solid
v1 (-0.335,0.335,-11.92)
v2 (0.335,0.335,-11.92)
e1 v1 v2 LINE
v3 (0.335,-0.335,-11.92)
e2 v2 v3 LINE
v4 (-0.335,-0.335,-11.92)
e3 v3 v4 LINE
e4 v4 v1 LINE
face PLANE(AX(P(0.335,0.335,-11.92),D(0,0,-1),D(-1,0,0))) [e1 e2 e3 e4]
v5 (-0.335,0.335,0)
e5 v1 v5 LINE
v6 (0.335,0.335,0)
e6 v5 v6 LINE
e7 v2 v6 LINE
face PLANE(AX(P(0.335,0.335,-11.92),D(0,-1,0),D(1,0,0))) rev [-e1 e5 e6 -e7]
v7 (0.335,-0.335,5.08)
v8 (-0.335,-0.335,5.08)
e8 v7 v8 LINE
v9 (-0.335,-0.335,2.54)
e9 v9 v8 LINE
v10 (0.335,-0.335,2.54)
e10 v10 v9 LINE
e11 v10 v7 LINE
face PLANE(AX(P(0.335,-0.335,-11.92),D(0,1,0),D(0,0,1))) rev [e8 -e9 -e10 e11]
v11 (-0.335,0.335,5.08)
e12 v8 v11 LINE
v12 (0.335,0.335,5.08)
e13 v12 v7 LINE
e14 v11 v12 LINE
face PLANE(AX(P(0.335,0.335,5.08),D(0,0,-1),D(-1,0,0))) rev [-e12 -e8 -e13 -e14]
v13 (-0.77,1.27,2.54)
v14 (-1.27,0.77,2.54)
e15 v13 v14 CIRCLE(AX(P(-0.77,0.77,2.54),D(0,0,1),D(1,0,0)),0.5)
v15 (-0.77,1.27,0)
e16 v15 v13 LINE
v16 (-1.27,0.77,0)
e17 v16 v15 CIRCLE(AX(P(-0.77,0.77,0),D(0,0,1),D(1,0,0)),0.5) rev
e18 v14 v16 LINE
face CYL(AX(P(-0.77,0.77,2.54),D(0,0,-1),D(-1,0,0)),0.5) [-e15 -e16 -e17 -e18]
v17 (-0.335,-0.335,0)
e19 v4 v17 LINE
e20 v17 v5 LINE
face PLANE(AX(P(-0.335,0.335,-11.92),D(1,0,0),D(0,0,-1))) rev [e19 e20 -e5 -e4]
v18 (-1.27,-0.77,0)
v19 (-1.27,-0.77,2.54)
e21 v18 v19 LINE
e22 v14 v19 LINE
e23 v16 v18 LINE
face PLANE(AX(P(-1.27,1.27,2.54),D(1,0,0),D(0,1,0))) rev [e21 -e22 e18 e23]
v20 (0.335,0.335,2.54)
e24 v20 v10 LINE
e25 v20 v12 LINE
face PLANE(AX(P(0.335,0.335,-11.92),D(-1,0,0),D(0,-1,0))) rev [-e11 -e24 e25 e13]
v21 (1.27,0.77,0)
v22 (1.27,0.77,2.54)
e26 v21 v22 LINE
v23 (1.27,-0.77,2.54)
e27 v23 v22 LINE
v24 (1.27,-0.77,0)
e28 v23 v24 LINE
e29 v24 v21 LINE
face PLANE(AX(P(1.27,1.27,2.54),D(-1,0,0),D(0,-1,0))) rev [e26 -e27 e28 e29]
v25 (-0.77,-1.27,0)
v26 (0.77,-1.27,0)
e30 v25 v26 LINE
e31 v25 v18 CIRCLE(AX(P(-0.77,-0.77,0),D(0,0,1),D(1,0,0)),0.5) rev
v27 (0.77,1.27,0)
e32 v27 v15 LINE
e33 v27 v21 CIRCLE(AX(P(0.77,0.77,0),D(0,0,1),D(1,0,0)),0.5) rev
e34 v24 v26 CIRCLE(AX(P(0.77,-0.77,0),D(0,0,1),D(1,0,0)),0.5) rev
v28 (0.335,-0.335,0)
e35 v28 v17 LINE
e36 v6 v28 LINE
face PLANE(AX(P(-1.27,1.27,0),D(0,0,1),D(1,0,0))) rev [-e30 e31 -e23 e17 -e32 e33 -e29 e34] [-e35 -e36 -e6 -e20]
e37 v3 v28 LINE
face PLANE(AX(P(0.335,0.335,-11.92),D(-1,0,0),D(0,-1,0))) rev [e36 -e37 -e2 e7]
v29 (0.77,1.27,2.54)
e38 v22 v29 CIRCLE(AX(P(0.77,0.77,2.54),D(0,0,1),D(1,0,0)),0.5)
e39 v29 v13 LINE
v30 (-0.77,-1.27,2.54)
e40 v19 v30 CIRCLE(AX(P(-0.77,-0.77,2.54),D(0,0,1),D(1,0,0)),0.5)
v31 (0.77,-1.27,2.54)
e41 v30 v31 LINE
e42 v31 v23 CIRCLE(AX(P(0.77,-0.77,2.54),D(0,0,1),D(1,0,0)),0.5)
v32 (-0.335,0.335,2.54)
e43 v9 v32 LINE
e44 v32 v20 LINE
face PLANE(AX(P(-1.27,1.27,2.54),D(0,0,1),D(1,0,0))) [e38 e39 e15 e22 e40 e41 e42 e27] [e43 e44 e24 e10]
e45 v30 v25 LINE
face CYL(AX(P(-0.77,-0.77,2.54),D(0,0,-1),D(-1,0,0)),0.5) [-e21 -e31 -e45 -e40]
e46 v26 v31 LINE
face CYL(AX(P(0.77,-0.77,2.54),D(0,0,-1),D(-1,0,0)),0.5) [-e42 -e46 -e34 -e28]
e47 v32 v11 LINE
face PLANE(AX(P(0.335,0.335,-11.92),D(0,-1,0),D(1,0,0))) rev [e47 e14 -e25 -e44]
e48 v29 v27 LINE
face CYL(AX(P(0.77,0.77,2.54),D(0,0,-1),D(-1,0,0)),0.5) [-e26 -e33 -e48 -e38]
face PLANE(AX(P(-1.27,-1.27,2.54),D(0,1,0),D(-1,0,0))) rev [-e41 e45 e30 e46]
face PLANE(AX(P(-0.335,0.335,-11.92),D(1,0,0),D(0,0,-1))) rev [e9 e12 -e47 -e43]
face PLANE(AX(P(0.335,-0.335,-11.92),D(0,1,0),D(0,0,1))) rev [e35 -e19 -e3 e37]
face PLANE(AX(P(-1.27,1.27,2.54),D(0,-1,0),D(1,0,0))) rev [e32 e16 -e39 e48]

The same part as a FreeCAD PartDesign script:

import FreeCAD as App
import Part
import Sketcher

V = App.Vector


def edges_at(feature, points):
    """Names of the edges that pass closest to the given points."""
    edges = feature.Shape.Edges
    near = lambda p: min(range(len(edges)), key=lambda i: edges[i].distToShape(Part.Vertex(*p))[0])
    return sorted({f"Edge{near(p) + 1}" for p in points})

doc = App.newDocument("Part")
body = doc.addObject("PartDesign::Body", "Body")

# Sketch on XY plane
sketch1 = body.newObject("Sketcher::SketchObject", "Sketch")
sketch1.AttachmentSupport = (doc.getObject("XY_Plane"), [""])
sketch1.MapMode = "FlatFace"
sketch1.addGeometry(Part.LineSegment(V(-1.3, 1.3, 0), V(-1.3, -1.3, 0)), False)
sketch1.addGeometry(Part.LineSegment(V(-1.3, -1.3, 0), V(1.3, -1.3, 0)), False)
sketch1.addGeometry(Part.LineSegment(V(1.3, -1.3, 0), V(1.3, 1.3, 0)), False)
sketch1.addGeometry(Part.LineSegment(V(1.3, 1.3, 0), V(-1.3, 1.3, 0)), False)
sketch1.addConstraint(Sketcher.Constraint("Coincident", 0, 2, 1, 1))
sketch1.addConstraint(Sketcher.Constraint("Coincident", 1, 2, 2, 1))
sketch1.addConstraint(Sketcher.Constraint("Coincident", 2, 2, 3, 1))
sketch1.addConstraint(Sketcher.Constraint("Coincident", 3, 2, 0, 1))
sketch1.addConstraint(Sketcher.Constraint("Vertical", 0))
sketch1.addConstraint(Sketcher.Constraint("Horizontal", 1))
sketch1.addConstraint(Sketcher.Constraint("Vertical", 2))
sketch1.addConstraint(Sketcher.Constraint("Horizontal", 3))
sketch1.addConstraint(Sketcher.Constraint("Symmetric", 0, 2, 2, 2, -1, 1))
sketch1.addConstraint(Sketcher.Constraint("Equal", 3, 0))
sketch1.addConstraint(Sketcher.Constraint("DistanceX", 1, 1, 1, 2, 2.54))
pad1 = body.newObject("PartDesign::Pad", "Pad")
pad1.Profile = sketch1
pad1.Length = 2.54

# Sketch on XY plane
sketch2 = body.newObject("Sketcher::SketchObject", "Sketch001")
sketch2.AttachmentSupport = (doc.getObject("XY_Plane"), [""])
sketch2.MapMode = "FlatFace"
sketch2.AttachmentOffset = App.Placement(V(0, 0, 5.08), App.Rotation())
sketch2.addGeometry(Part.LineSegment(V(0.3, 0.3, 0), V(0.3, -0.3, 0)), False)
sketch2.addGeometry(Part.LineSegment(V(0.3, -0.3, 0), V(-0.3, -0.3, 0)), False)
sketch2.addGeometry(Part.LineSegment(V(-0.3, -0.3, 0), V(-0.3, 0.3, 0)), False)
sketch2.addGeometry(Part.LineSegment(V(-0.3, 0.3, 0), V(0.3, 0.3, 0)), False)
sketch2.addConstraint(Sketcher.Constraint("Coincident", 0, 2, 1, 1))
sketch2.addConstraint(Sketcher.Constraint("Coincident", 1, 2, 2, 1))
sketch2.addConstraint(Sketcher.Constraint("Coincident", 2, 2, 3, 1))
sketch2.addConstraint(Sketcher.Constraint("Coincident", 3, 2, 0, 1))
sketch2.addConstraint(Sketcher.Constraint("Vertical", 0))
sketch2.addConstraint(Sketcher.Constraint("Horizontal", 1))
sketch2.addConstraint(Sketcher.Constraint("Vertical", 2))
sketch2.addConstraint(Sketcher.Constraint("Horizontal", 3))
sketch2.addConstraint(Sketcher.Constraint("Symmetric", 0, 2, 2, 2, -1, 1))
sketch2.addConstraint(Sketcher.Constraint("Equal", 3, 0))
sketch2.addConstraint(Sketcher.Constraint("DistanceX", 1, 2, 1, 1, 0.67))

# Sketch on XZ plane
sketch3 = body.newObject("Sketcher::SketchObject", "Sketch002")
sketch3.AttachmentSupport = (doc.getObject("XZ_Plane"), [""])
sketch3.MapMode = "FlatFace"
sketch3.AttachmentOffset = App.Placement(V(0, 0, 0.01), App.Rotation())
sketch3.addGeometry(Part.LineSegment(V(0, -12, 0), V(0, 5, 0)), False)
sketch3.addConstraint(Sketcher.Constraint("Vertical", 0))
sketch3.addConstraint(Sketcher.Constraint("PointOnObject", 0, 1, -2))
sketch3.addConstraint(Sketcher.Constraint("DistanceY", 0, 1, 0, 2, 17.0))
sketch3.addConstraint(Sketcher.Constraint("DistanceY", 0, 1, -1, 1, 11.92))
doc.recompute()

additivepipe = body.newObject("PartDesign::AdditivePipe", "AdditivePipe")
additivepipe.Profile = sketch2
additivepipe.Spine = (sketch3, ["Edge1"])
doc.recompute()

fillet = body.newObject("PartDesign::Fillet", "Fillet")
fillet.Base = (additivepipe, edges_at(additivepipe, [
    (-1.27, 1.27, 1.27),
    (1.27, 1.27, 1.27),
    (1.27, -1.27, 1.27),
    (-1.27, -1.27, 1.27),
]))
fillet.Radius = 0.5

doc.recompute()
